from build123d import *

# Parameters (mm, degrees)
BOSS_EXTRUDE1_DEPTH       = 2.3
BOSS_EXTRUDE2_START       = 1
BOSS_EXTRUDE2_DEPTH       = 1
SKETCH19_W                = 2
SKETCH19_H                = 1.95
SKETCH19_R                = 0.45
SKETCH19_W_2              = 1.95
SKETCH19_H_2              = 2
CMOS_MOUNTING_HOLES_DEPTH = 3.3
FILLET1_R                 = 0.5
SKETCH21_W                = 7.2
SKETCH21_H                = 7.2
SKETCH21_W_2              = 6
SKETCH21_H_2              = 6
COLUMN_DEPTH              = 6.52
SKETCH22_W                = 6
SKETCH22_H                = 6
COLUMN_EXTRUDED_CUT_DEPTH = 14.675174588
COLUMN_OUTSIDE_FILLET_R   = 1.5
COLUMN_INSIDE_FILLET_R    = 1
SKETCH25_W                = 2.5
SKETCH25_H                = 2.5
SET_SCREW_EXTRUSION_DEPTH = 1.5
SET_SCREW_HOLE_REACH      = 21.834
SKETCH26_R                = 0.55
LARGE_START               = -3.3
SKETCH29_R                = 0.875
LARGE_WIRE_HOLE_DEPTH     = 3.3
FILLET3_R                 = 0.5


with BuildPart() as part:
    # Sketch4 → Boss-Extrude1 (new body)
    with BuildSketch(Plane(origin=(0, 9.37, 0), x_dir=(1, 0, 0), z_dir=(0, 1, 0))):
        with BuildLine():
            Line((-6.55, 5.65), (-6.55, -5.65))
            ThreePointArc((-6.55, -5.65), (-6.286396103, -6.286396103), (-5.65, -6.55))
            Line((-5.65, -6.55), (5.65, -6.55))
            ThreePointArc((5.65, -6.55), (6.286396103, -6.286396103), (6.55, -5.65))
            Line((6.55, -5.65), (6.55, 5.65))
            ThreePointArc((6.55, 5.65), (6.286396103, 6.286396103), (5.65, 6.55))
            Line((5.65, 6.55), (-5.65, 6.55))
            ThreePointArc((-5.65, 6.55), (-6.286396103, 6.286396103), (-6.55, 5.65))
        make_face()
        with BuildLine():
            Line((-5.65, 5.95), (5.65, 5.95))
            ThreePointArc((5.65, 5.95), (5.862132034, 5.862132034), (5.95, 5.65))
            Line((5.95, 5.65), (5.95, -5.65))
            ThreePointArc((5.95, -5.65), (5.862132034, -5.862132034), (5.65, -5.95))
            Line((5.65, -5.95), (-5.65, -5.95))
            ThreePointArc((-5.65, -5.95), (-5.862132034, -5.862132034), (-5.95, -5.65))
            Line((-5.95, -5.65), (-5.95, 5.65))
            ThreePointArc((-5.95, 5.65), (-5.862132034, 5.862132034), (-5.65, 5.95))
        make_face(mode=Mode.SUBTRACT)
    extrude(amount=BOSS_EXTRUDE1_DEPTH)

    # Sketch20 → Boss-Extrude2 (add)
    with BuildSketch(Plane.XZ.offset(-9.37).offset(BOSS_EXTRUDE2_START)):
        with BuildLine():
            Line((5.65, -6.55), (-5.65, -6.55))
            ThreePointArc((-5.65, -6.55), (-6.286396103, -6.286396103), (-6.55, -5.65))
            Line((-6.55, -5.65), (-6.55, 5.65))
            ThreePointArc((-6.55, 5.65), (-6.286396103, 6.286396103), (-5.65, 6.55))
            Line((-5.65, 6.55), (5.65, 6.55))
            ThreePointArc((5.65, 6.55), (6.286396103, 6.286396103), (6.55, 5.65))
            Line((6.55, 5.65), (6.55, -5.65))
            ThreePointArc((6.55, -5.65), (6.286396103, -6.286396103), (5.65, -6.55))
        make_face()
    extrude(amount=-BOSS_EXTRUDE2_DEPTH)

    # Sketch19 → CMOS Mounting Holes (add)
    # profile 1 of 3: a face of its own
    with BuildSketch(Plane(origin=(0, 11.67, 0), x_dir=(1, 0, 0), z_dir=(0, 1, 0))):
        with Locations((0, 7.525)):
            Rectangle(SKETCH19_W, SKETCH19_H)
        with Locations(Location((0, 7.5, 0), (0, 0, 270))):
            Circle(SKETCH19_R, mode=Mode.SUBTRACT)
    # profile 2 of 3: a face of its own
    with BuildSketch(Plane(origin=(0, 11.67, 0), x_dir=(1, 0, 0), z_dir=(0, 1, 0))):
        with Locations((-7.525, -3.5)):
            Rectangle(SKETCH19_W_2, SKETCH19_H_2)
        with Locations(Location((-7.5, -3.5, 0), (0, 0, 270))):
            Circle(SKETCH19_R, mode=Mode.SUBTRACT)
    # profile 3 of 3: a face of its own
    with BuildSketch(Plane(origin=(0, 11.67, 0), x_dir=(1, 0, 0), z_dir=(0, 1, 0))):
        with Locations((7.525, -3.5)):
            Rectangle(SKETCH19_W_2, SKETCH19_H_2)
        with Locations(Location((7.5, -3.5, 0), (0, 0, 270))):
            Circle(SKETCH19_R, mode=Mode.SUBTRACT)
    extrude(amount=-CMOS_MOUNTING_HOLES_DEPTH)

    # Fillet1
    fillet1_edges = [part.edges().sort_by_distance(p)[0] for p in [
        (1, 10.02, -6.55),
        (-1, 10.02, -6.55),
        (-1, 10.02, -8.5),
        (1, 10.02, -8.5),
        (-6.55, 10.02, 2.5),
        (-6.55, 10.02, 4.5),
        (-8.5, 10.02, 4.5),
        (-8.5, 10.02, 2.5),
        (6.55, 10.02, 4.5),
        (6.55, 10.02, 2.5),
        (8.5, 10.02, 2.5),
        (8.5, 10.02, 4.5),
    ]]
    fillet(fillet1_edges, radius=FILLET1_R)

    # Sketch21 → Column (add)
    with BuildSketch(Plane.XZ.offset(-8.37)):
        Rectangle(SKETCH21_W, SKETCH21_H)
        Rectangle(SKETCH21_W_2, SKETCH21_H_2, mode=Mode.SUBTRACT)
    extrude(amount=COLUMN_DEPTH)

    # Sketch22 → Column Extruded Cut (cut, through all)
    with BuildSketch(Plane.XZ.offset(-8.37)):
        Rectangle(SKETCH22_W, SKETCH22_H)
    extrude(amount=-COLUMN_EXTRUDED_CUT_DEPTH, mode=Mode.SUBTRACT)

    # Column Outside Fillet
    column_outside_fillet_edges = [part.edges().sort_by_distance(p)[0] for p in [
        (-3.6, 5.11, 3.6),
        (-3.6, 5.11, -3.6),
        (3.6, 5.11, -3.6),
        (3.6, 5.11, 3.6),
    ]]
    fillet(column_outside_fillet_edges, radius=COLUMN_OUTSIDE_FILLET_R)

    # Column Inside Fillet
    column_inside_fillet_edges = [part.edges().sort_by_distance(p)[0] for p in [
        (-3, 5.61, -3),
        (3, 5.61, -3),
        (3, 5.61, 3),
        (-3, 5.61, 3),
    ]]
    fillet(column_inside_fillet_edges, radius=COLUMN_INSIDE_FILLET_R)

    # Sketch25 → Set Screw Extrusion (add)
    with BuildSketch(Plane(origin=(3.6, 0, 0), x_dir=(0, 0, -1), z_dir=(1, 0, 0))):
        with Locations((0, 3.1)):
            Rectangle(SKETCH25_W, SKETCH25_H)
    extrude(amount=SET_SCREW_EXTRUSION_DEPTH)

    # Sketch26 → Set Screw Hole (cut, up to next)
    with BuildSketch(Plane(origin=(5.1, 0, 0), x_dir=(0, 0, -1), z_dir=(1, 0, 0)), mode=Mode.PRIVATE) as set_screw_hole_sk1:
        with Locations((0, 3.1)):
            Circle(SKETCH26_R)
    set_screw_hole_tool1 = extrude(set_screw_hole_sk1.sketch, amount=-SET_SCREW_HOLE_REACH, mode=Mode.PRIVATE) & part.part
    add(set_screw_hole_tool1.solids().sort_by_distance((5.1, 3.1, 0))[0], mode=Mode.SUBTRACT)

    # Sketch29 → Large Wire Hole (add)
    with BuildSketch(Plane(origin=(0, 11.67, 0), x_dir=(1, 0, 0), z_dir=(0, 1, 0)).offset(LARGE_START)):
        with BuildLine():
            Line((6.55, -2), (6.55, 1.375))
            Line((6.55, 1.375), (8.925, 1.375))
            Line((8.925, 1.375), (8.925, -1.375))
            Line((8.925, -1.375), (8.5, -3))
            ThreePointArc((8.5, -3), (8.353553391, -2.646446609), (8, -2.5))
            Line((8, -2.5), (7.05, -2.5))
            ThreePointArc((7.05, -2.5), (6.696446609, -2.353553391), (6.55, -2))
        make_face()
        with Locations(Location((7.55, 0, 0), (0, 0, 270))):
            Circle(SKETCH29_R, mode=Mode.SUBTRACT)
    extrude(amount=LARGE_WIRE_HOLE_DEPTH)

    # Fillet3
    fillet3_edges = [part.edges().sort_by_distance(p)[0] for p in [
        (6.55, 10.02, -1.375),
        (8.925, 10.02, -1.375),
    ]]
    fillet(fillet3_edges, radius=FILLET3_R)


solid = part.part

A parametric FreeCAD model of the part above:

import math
import FreeCAD as App
import Part
import Sketcher
from FreeCAD import Vector


def edges_at(feature, points):
    """Names of the edges that pass closest to the given points."""
    edges = feature.Shape.Edges
    near = lambda p: min(range(len(edges)), key=lambda i: edges[i].distToShape(Part.Vertex(*p))[0])
    return sorted({f"Edge{near(p) + 1}" for p in points})

doc = App.newDocument("Part")
body = doc.addObject("PartDesign::Body", "Body")

# Sketch on XZ plane
sketch1 = doc.addObject("Sketcher::SketchObject", "Sketch")
body.addObject(sketch1)
sketch1.AttachmentSupport = (doc.XZ_Plane, [""])
sketch1.MapMode = "FlatFace"
sketch1.AttachmentOffset = App.Placement(Vector(0, 0, -9.37), App.Rotation())
sketch1.addGeometry([
    Part.LineSegment(Vector(-6.55, -5.65, 0), Vector(-6.55, 5.65, 0)),  # 0
    Part.ArcOfCircle(Part.Circle(Vector(-5.65, 5.65, 0), Vector(0, 0, 1), 0.9), math.radians(90), math.radians(180)),  # 1
    Part.LineSegment(Vector(-5.65, 6.55, 0), Vector(5.65, 6.55, 0)),  # 2
    Part.ArcOfCircle(Part.Circle(Vector(5.65, 5.65, 0), Vector(0, 0, 1), 0.9), math.radians(0), math.radians(90)),  # 3
    Part.LineSegment(Vector(6.55, 5.65, 0), Vector(6.55, -5.65, 0)),  # 4
    Part.ArcOfCircle(Part.Circle(Vector(5.65, -5.65, 0), Vector(0, 0, 1), 0.9), math.radians(-90), math.radians(0)),  # 5
    Part.LineSegment(Vector(5.65, -6.55, 0), Vector(-5.65, -6.55, 0)),  # 6
    Part.ArcOfCircle(Part.Circle(Vector(-5.65, -5.65, 0), Vector(0, 0, 1), 0.9), math.radians(180), math.radians(270)),  # 7
    Part.ArcOfCircle(Part.Circle(Vector(-5.65, -5.65, 0), Vector(0, 0, 1), 0.3), math.radians(-180), math.radians(-90)),  # 8
    Part.LineSegment(Vector(-5.65, -5.95, 0), Vector(5.65, -5.95, 0)),  # 9
    Part.ArcOfCircle(Part.Circle(Vector(5.65, -5.65, 0), Vector(0, 0, 1), 0.3), math.radians(-90), math.radians(0)),  # 10
    Part.LineSegment(Vector(5.95, -5.65, 0), Vector(5.95, 5.65, 0)),  # 11
    Part.ArcOfCircle(Part.Circle(Vector(5.65, 5.65, 0), Vector(0, 0, 1), 0.3), math.radians(0), math.radians(90)),  # 12
    Part.LineSegment(Vector(5.65, 5.95, 0), Vector(-5.65, 5.95, 0)),  # 13
    Part.ArcOfCircle(Part.Circle(Vector(-5.65, 5.65, 0), Vector(0, 0, 1), 0.3), math.radians(90), math.radians(180)),  # 14
    Part.LineSegment(Vector(-5.95, 5.65, 0), Vector(-5.95, -5.65, 0)),  # 15
], False)
sketch1.addConstraint([
    Sketcher.Constraint("Tangent", 0, 2, 1, 2),
    Sketcher.Constraint("Tangent", 1, 1, 2, 1),
    Sketcher.Constraint("Tangent", 2, 2, 3, 2),
    Sketcher.Constraint("Tangent", 3, 1, 4, 1),
    Sketcher.Constraint("Tangent", 4, 2, 5, 2),
    Sketcher.Constraint("Tangent", 5, 1, 6, 1),
    Sketcher.Constraint("Tangent", 6, 2, 7, 2),
    Sketcher.Constraint("Tangent", 7, 1, 0, 1),
    Sketcher.Constraint("Tangent", 8, 2, 9, 1),
    Sketcher.Constraint("Tangent", 9, 2, 10, 1),
    Sketcher.Constraint("Tangent", 10, 2, 11, 1),
    Sketcher.Constraint("Tangent", 11, 2, 12, 1),
    Sketcher.Constraint("Tangent", 12, 2, 13, 1),
    Sketcher.Constraint("Tangent", 13, 2, 14, 1),
    Sketcher.Constraint("Tangent", 14, 2, 15, 1),
    Sketcher.Constraint("Tangent", 15, 2, 8, 1),
    Sketcher.Constraint("Vertical", 0),
    Sketcher.Constraint("Horizontal", 2),
    Sketcher.Constraint("Vertical", 4),
    Sketcher.Constraint("Horizontal", 6),
    Sketcher.Constraint("Horizontal", 9),
    Sketcher.Constraint("Vertical", 11),
    Sketcher.Constraint("Horizontal", 13),
    Sketcher.Constraint("Vertical", 15),
    Sketcher.Constraint("Coincident", 8, 3, 7, 3),
    Sketcher.Constraint("Coincident", 10, 3, 5, 3),
    Sketcher.Constraint("Coincident", 12, 3, 3, 3),
    Sketcher.Constraint("Equal", 1, 3),
    Sketcher.Constraint("Equal", 3, 5),
    Sketcher.Constraint("Equal", 5, 7),
    Sketcher.Constraint("Equal", 12, 14),
    Sketcher.Constraint("Symmetric", 1, 3, 5, 3, -1, 1),
    Sketcher.Constraint("Equal", 13, 0),
    Sketcher.Constraint("Radius", 1, 0.9),
    Sketcher.Constraint("Radius", 8, 0.3),
    Sketcher.Constraint("DistanceX", 2, 1, 2, 2, 11.3),
])
pad1 = doc.addObject("PartDesign::Pad", "Pad")
body.addObject(pad1)
pad1.Profile = sketch1
pad1.Length = 2.3
pad1.Reversed = True

# Sketch on XZ plane
sketch2 = doc.addObject("Sketcher::SketchObject", "Sketch001")
body.addObject(sketch2)
sketch2.AttachmentSupport = (doc.XZ_Plane, [""])
sketch2.MapMode = "FlatFace"
sketch2.AttachmentOffset = App.Placement(Vector(0, 0, -8.37), App.Rotation())
sketch2.addGeometry([
    Part.LineSegment(Vector(-5.65, -6.55, 0), Vector(5.65, -6.55, 0)),  # 0
    Part.ArcOfCircle(Part.Circle(Vector(5.65, -5.65, 0), Vector(0, 0, 1), 0.9), math.radians(-90), math.radians(0)),  # 1
    Part.LineSegment(Vector(6.55, -5.65, 0), Vector(6.55, 5.65, 0)),  # 2
    Part.ArcOfCircle(Part.Circle(Vector(5.65, 5.65, 0), Vector(0, 0, 1), 0.9), math.radians(0), math.radians(90)),  # 3
    Part.LineSegment(Vector(5.65, 6.55, 0), Vector(-5.65, 6.55, 0)),  # 4
    Part.ArcOfCircle(Part.Circle(Vector(-5.65, 5.65, 0), Vector(0, 0, 1), 0.9), math.radians(90), math.radians(180)),  # 5
    Part.LineSegment(Vector(-6.55, 5.65, 0), Vector(-6.55, -5.65, 0)),  # 6
    Part.ArcOfCircle(Part.Circle(Vector(-5.65, -5.65, 0), Vector(0, 0, 1), 0.9), math.radians(180), math.radians(270)),  # 7
], False)
sketch2.addConstraint([
    Sketcher.Constraint("Tangent", 0, 2, 1, 1),
    Sketcher.Constraint("Tangent", 1, 2, 2, 1),
    Sketcher.Constraint("Tangent", 2, 2, 3, 1),
    Sketcher.Constraint("Tangent", 3, 2, 4, 1),
    Sketcher.Constraint("Tangent", 4, 2, 5, 1),
    Sketcher.Constraint("Tangent", 5, 2, 6, 1),
    Sketcher.Constraint("Tangent", 6, 2, 7, 1),
    Sketcher.Constraint("Tangent", 7, 2, 0, 1),
    Sketcher.Constraint("Horizontal", 0),
    Sketcher.Constraint("Vertical", 2),
    Sketcher.Constraint("Horizontal", 4),
    Sketcher.Constraint("Vertical", 6),
    Sketcher.Constraint("Equal", 1, 3),
    Sketcher.Constraint("Equal", 3, 5),
    Sketcher.Constraint("Equal", 5, 7),
    Sketcher.Constraint("Symmetric", 1, 3, 5, 3, -1, 1),
    Sketcher.Constraint("Equal", 4, 2),
    Sketcher.Constraint("Radius", 1, 0.9),
    Sketcher.Constraint("DistanceX", 0, 1, 0, 2, 11.3),
])
pad2 = doc.addObject("PartDesign::Pad", "Pad001")
body.addObject(pad2)
pad2.Profile = sketch2
pad2.Length = 1
pad2.Reversed = True

# Sketch on XZ plane
sketch3 = doc.addObject("Sketcher::SketchObject", "Sketch002")
body.addObject(sketch3)
sketch3.AttachmentSupport = (doc.XZ_Plane, [""])
sketch3.MapMode = "FlatFace"
sketch3.AttachmentOffset = App.Placement(Vector(0, 0, -11.67), App.Rotation())
sketch3.addGeometry([
    Part.LineSegment(Vector(-1, -8.5, 0), Vector(-1, -6.55, 0)),  # 0
    Part.LineSegment(Vector(-1, -6.55, 0), Vector(1, -6.55, 0)),  # 1
    Part.LineSegment(Vector(1, -6.55, 0), Vector(1, -8.5, 0)),  # 2
    Part.LineSegment(Vector(1, -8.5, 0), Vector(-1, -8.5, 0)),  # 3
    Part.Circle(Vector(0, -7.5, 0), Vector(0, 0, 1), 0.45),  # 4
    Part.LineSegment(Vector(-8.5, 2.5, 0), Vector(-8.5, 4.5, 0)),  # 5
    Part.LineSegment(Vector(-8.5, 4.5, 0), Vector(-6.55, 4.5, 0)),  # 6
    Part.LineSegment(Vector(-6.55, 4.5, 0), Vector(-6.55, 2.5, 0)),  # 7
    Part.LineSegment(Vector(-6.55, 2.5, 0), Vector(-8.5, 2.5, 0)),  # 8
    Part.Circle(Vector(-7.5, 3.5, 0), Vector(0, 0, 1), 0.45),  # 9
    Part.LineSegment(Vector(6.55, 2.5, 0), Vector(6.55, 4.5, 0)),  # 10
    Part.LineSegment(Vector(6.55, 4.5, 0), Vector(8.5, 4.5, 0)),  # 11
    Part.LineSegment(Vector(8.5, 4.5, 0), Vector(8.5, 2.5, 0)),  # 12
    Part.LineSegment(Vector(8.5, 2.5, 0), Vector(6.55, 2.5, 0)),  # 13
    Part.Circle(Vector(7.5, 3.5, 0), Vector(0, 0, 1), 0.45),  # 14
], False)
sketch3.addConstraint([
    Sketcher.Constraint("Coincident", 0, 2, 1, 1),
    Sketcher.Constraint("Coincident", 1, 2, 2, 1),
    Sketcher.Constraint("Coincident", 2, 2, 3, 1),
    Sketcher.Constraint("Coincident", 3, 2, 0, 1),
    Sketcher.Constraint("Coincident", 5, 2, 6, 1),
    Sketcher.Constraint("Coincident", 6, 2, 7, 1),
    Sketcher.Constraint("Coincident", 7, 2, 8, 1),
    Sketcher.Constraint("Coincident", 8, 2, 5, 1),
    Sketcher.Constraint("Coincident", 10, 2, 11, 1),
    Sketcher.Constraint("Coincident", 11, 2, 12, 1),
    Sketcher.Constraint("Coincident", 12, 2, 13, 1),
    Sketcher.Constraint("Coincident", 13, 2, 10, 1),
    Sketcher.Constraint("Vertical", 0),
    Sketcher.Constraint("Horizontal", 1),
    Sketcher.Constraint("Vertical", 2),
    Sketcher.Constraint("Horizontal", 3),
    Sketcher.Constraint("Vertical", 5),
    Sketcher.Constraint("Horizontal", 6),
    Sketcher.Constraint("Vertical", 7),
    Sketcher.Constraint("Horizontal", 8),
    Sketcher.Constraint("Vertical", 10),
    Sketcher.Constraint("Horizontal", 11),
    Sketcher.Constraint("Vertical", 12),
    Sketcher.Constraint("Horizontal", 13),
    Sketcher.Constraint("Equal", 4, 9),
    Sketcher.Constraint("Equal", 9, 14),
    Sketcher.Constraint("Symmetric", 9, 3, 14, 3, -2),
    Sketcher.Constraint("Symmetric", 6, 2, 10, 2, -2),
    Sketcher.Constraint("Symmetric", 8, 2, 12, 2, -2),
    Sketcher.Constraint("PointOnObject", 4, 3, -2),
    Sketcher.Constraint("Equal", 13, 0),
    Sketcher.Constraint("Equal", 3, 5),
    Sketcher.Constraint("Diameter", 4, 0.9),
    Sketcher.Constraint("DistanceX", 1, 1, 1, 2, 2.0),
    Sketcher.Constraint("DistanceX", 0, 2, -1, 1, 1.0),
    Sketcher.Constraint("DistanceY", 4, 3, 9, 3, 11.0),
    Sketcher.Constraint("DistanceX", 9, 3, 14, 3, 15.0),
    Sketcher.Constraint("DistanceY", 2, 2, 4, 3, 1.0),
    Sketcher.Constraint("DistanceX", 5, 2, 9, 3, 1.0),
    Sketcher.Constraint("DistanceY", 9, 3, 5, 2, 1.0),
    Sketcher.Constraint("DistanceX", 6, 1, 6, 2, 1.95),
    Sketcher.Constraint("DistanceY", 4, 3, -1, 1, 7.5),
])
pad3 = doc.addObject("PartDesign::Pad", "Pad002")
body.addObject(pad3)
pad3.Profile = sketch3
pad3.Length = 3.3
doc.recompute()

fillet = doc.addObject("PartDesign::Fillet", "Fillet")
body.addObject(fillet)
fillet.Base = (pad3, edges_at(pad3, [
    (1, 10.02, -6.55),
    (-1, 10.02, -6.55),
    (-1, 10.02, -8.5),
    (1, 10.02, -8.5),
    (-6.55, 10.02, 2.5),
    (-6.55, 10.02, 4.5),
    (-8.5, 10.02, 4.5),
    (-8.5, 10.02, 2.5),
    (6.55, 10.02, 4.5),
    (6.55, 10.02, 2.5),
    (8.5, 10.02, 2.5),
    (8.5, 10.02, 4.5),
]))
fillet.Radius = 0.5

# Sketch on XZ plane
sketch4 = doc.addObject("Sketcher::SketchObject", "Sketch003")
body.addObject(sketch4)
sketch4.AttachmentSupport = (doc.XZ_Plane, [""])
sketch4.MapMode = "FlatFace"
sketch4.AttachmentOffset = App.Placement(Vector(0, 0, -8.37), App.Rotation())
sketch4.addGeometry([
    Part.LineSegment(Vector(-3.6, 3.6, 0), Vector(-3.6, -3.6, 0)),  # 0
    Part.LineSegment(Vector(-3.6, -3.6, 0), Vector(3.6, -3.6, 0)),  # 1
    Part.LineSegment(Vector(3.6, -3.6, 0), Vector(3.6, 3.6, 0)),  # 2
    Part.LineSegment(Vector(3.6, 3.6, 0), Vector(-3.6, 3.6, 0)),  # 3
    Part.LineSegment(Vector(3, -3, 0), Vector(-3, -3, 0)),  # 4
    Part.LineSegment(Vector(-3, -3, 0), Vector(-3, 3, 0)),  # 5
    Part.LineSegment(Vector(-3, 3, 0), Vector(3, 3, 0)),  # 6
    Part.LineSegment(Vector(3, 3, 0), Vector(3, -3, 0)),  # 7
], False)
sketch4.addConstraint([
    Sketcher.Constraint("Coincident", 0, 2, 1, 1),
    Sketcher.Constraint("Coincident", 1, 2, 2, 1),
    Sketcher.Constraint("Coincident", 2, 2, 3, 1),
    Sketcher.Constraint("Coincident", 3, 2, 0, 1),
    Sketcher.Constraint("Coincident", 4, 2, 5, 1),
    Sketcher.Constraint("Coincident", 5, 2, 6, 1),
    Sketcher.Constraint("Coincident", 6, 2, 7, 1),
    Sketcher.Constraint("Coincident", 7, 2, 4, 1),
    Sketcher.Constraint("Vertical", 0),
    Sketcher.Constraint("Horizontal", 1),
    Sketcher.Constraint("Vertical", 2),
    Sketcher.Constraint("Horizontal", 3),
    Sketcher.Constraint("Horizontal", 4),
    Sketcher.Constraint("Vertical", 5),
    Sketcher.Constraint("Horizontal", 6),
    Sketcher.Constraint("Vertical", 7),
    Sketcher.Constraint("Symmetric", 0, 2, 2, 2, -1, 1),
    Sketcher.Constraint("Symmetric", 4, 2, 6, 2, -1, 1),
    Sketcher.Constraint("Equal", 3, 0),
    Sketcher.Constraint("Equal", 6, 5),
    Sketcher.Constraint("DistanceX", 4, 2, 4, 1, 6.0),
    Sketcher.Constraint("DistanceX", 1, 1, 1, 2, 7.2),
])
pad4 = doc.addObject("PartDesign::Pad", "Pad003")
body.addObject(pad4)
pad4.Profile = sketch4
pad4.Length = 6.52

# Sketch on XZ plane
sketch5 = doc.addObject("Sketcher::SketchObject", "Sketch004")
body.addObject(sketch5)
sketch5.AttachmentSupport = (doc.XZ_Plane, [""])
sketch5.MapMode = "FlatFace"
sketch5.AttachmentOffset = App.Placement(Vector(0, 0, -8.37), App.Rotation())
sketch5.addGeometry([
    Part.LineSegment(Vector(-3, 3, 0), Vector(-3, -3, 0)),
    Part.LineSegment(Vector(-3, -3, 0), Vector(3, -3, 0)),
    Part.LineSegment(Vector(3, -3, 0), Vector(3, 3, 0)),
    Part.LineSegment(Vector(3, 3, 0), Vector(-3, 3, 0)),
], False)
sketch5.addConstraint([
    Sketcher.Constraint("Coincident", 0, 2, 1, 1),
    Sketcher.Constraint("Coincident", 1, 2, 2, 1),
    Sketcher.Constraint("Coincident", 2, 2, 3, 1),
    Sketcher.Constraint("Coincident", 3, 2, 0, 1),
    Sketcher.Constraint("Vertical", 0),
    Sketcher.Constraint("Horizontal", 1),
    Sketcher.Constraint("Vertical", 2),
    Sketcher.Constraint("Horizontal", 3),
    Sketcher.Constraint("Symmetric", 0, 2, 2, 2, -1, 1),
    Sketcher.Constraint("Equal", 3, 0),
    Sketcher.Constraint("DistanceX", 1, 1, 1, 2, 6.0),
])
pocket1 = doc.addObject("PartDesign::Pocket", "Pocket")
body.addObject(pocket1)
pocket1.Profile = sketch5
pocket1.Type = "ThroughAll"
doc.recompute()

fillet2 = doc.addObject("PartDesign::Fillet", "Fillet001")
body.addObject(fillet2)
fillet2.Base = (pocket1, edges_at(pocket1, [
    (-3.6, 5.11, 3.6),
    (-3.6, 5.11, -3.6),
    (3.6, 5.11, -3.6),
    (3.6, 5.11, 3.6),
]))
fillet2.Radius = 1.5
doc.recompute()

fillet3 = doc.addObject("PartDesign::Fillet", "Fillet002")
body.addObject(fillet3)
fillet3.Base = (fillet2, edges_at(fillet2, [
    (-3, 5.61, -3),
    (3, 5.61, -3),
    (3, 5.61, 3),
    (-3, 5.61, 3),
]))
fillet3.Radius = 1

# Sketch on YZ plane
sketch6 = doc.addObject("Sketcher::SketchObject", "Sketch005")
body.addObject(sketch6)
sketch6.AttachmentSupport = (doc.YZ_Plane, [""])
sketch6.MapMode = "FlatFace"
sketch6.AttachmentOffset = App.Placement(Vector(0, 0, 3.6), App.Rotation())
sketch6.addGeometry([
    Part.LineSegment(Vector(4.35, 1.25, 0), Vector(1.85, 1.25, 0)),
    Part.LineSegment(Vector(1.85, 1.25, 0), Vector(1.85, -1.25, 0)),
    Part.LineSegment(Vector(1.85, -1.25, 0), Vector(4.35, -1.25, 0)),
    Part.LineSegment(Vector(4.35, -1.25, 0), Vector(4.35, 1.25, 0)),
], False)
sketch6.addConstraint([
    Sketcher.Constraint("Coincident", 0, 2, 1, 1),
    Sketcher.Constraint("Coincident", 1, 2, 2, 1),
    Sketcher.Constraint("Coincident", 2, 2, 3, 1),
    Sketcher.Constraint("Coincident", 3, 2, 0, 1),
    Sketcher.Constraint("Horizontal", 0),
    Sketcher.Constraint("Vertical", 1),
    Sketcher.Constraint("Horizontal", 2),
    Sketcher.Constraint("Vertical", 3),
    Sketcher.Constraint("Equal", 2, 1),
    Sketcher.Constraint("DistanceX", 0, 2, 0, 1, 2.5),
    Sketcher.Constraint("DistanceX", -1, 1, 0, 2, 1.85),
    Sketcher.Constraint("DistanceY", -1, 1, 0, 2, 1.25),
])
pad5 = doc.addObject("PartDesign::Pad", "Pad004")
body.addObject(pad5)
pad5.Profile = sketch6
pad5.Length = 1.5

# Sketch on YZ plane
sketch7 = doc.addObject("Sketcher::SketchObject", "Sketch006")
body.addObject(sketch7)
sketch7.AttachmentSupport = (doc.YZ_Plane, [""])
sketch7.MapMode = "FlatFace"
sketch7.AttachmentOffset = App.Placement(Vector(0, 0, 5.1), App.Rotation())
sketch7.addGeometry(Part.Circle(Vector(3.1, 0, 0), Vector(0, 0, 1), 0.55), False)
sketch7.addConstraint([
    Sketcher.Constraint("PointOnObject", 0, 3, -1),
    Sketcher.Constraint("Diameter", 0, 1.1),
    Sketcher.Constraint("DistanceX", -1, 1, 0, 3, 3.1),
])
pocket2 = doc.addObject("PartDesign::Pocket", "Pocket001")
body.addObject(pocket2)
pocket2.Profile = sketch7
pocket2.Type = "UpToFirst"

# Sketch on XZ plane
sketch8 = doc.addObject("Sketcher::SketchObject", "Sketch007")
body.addObject(sketch8)
sketch8.AttachmentSupport = (doc.XZ_Plane, [""])
sketch8.MapMode = "FlatFace"
sketch8.AttachmentOffset = App.Placement(Vector(0, 0, -8.37), App.Rotation())
sketch8.addGeometry([
    Part.LineSegment(Vector(6.55, -1.375, 0), Vector(6.55, 2, 0)),  # 0
    Part.ArcOfCircle(Part.Circle(Vector(7.05, 2, 0), Vector(0, 0, 1), 0.5), math.radians(90), math.radians(180)),  # 1
    Part.LineSegment(Vector(7.05, 2.5, 0), Vector(8, 2.5, 0)),  # 2
    Part.ArcOfCircle(Part.Circle(Vector(8, 3, 0), Vector(0, 0, 1), 0.5), math.radians(-90), math.radians(0)),  # 3
    Part.LineSegment(Vector(8.5, 3, 0), Vector(8.925, 1.375, 0)),  # 4
    Part.LineSegment(Vector(8.925, 1.375, 0), Vector(8.925, -1.375, 0)),  # 5
    Part.LineSegment(Vector(8.925, -1.375, 0), Vector(6.55, -1.375, 0)),  # 6
    Part.Circle(Vector(7.55, 0, 0), Vector(0, 0, 1), 0.875),  # 7
], False)
sketch8.addConstraint([
    Sketcher.Constraint("Tangent", 0, 2, 1, 2),
    Sketcher.Constraint("Tangent", 1, 1, 2, 1),
    Sketcher.Constraint("Tangent", 2, 2, 3, 1),
    Sketcher.Constraint("Coincident", 3, 2, 4, 1),
    Sketcher.Constraint("Coincident", 4, 2, 5, 1),
    Sketcher.Constraint("Coincident", 5, 2, 6, 1),
    Sketcher.Constraint("Coincident", 6, 2, 0, 1),
    Sketcher.Constraint("Vertical", 0),
    Sketcher.Constraint("Horizontal", 2),
    Sketcher.Constraint("Vertical", 5),
    Sketcher.Constraint("Horizontal", 6),
    Sketcher.Constraint("Equal", 1, 3),
    Sketcher.Constraint("PointOnObject", 7, 3, -1),
    Sketcher.Constraint("Radius", 1, 0.5),
    Sketcher.Constraint("Diameter", 7, 1.75),
    Sketcher.Constraint("DistanceY", -1, 1, 1, 3, 2.0),
    Sketcher.Constraint("DistanceX", -1, 1, 3, 3, 8.0),
    Sketcher.Constraint("DistanceY", -1, 1, 3, 2, 3.0),
    Sketcher.Constraint("DistanceX", 0, 2, 7, 3, 1.0),
    Sketcher.Constraint("DistanceX", 2, 1, 2, 2, 0.95),
    Sketcher.Constraint("DistanceY", 5, 2, 5, 1, 2.75),
    Sketcher.Constraint("DistanceX", 6, 2, 6, 1, 2.375),
    Sketcher.Constraint("DistanceY", 0, 1, 0, 2, 3.375),
])
pad6 = doc.addObject("PartDesign::Pad", "Pad005")
body.addObject(pad6)
pad6.Profile = sketch8
pad6.Length = 3.3
pad6.Reversed = True
doc.recompute()

fillet4 = doc.addObject("PartDesign::Fillet", "Fillet003")
body.addObject(fillet4)
fillet4.Base = (pad6, edges_at(pad6, [(6.55, 10.02, -1.375), (8.925, 10.02, -1.375)]))
fillet4.Radius = 0.5

doc.recompute()
